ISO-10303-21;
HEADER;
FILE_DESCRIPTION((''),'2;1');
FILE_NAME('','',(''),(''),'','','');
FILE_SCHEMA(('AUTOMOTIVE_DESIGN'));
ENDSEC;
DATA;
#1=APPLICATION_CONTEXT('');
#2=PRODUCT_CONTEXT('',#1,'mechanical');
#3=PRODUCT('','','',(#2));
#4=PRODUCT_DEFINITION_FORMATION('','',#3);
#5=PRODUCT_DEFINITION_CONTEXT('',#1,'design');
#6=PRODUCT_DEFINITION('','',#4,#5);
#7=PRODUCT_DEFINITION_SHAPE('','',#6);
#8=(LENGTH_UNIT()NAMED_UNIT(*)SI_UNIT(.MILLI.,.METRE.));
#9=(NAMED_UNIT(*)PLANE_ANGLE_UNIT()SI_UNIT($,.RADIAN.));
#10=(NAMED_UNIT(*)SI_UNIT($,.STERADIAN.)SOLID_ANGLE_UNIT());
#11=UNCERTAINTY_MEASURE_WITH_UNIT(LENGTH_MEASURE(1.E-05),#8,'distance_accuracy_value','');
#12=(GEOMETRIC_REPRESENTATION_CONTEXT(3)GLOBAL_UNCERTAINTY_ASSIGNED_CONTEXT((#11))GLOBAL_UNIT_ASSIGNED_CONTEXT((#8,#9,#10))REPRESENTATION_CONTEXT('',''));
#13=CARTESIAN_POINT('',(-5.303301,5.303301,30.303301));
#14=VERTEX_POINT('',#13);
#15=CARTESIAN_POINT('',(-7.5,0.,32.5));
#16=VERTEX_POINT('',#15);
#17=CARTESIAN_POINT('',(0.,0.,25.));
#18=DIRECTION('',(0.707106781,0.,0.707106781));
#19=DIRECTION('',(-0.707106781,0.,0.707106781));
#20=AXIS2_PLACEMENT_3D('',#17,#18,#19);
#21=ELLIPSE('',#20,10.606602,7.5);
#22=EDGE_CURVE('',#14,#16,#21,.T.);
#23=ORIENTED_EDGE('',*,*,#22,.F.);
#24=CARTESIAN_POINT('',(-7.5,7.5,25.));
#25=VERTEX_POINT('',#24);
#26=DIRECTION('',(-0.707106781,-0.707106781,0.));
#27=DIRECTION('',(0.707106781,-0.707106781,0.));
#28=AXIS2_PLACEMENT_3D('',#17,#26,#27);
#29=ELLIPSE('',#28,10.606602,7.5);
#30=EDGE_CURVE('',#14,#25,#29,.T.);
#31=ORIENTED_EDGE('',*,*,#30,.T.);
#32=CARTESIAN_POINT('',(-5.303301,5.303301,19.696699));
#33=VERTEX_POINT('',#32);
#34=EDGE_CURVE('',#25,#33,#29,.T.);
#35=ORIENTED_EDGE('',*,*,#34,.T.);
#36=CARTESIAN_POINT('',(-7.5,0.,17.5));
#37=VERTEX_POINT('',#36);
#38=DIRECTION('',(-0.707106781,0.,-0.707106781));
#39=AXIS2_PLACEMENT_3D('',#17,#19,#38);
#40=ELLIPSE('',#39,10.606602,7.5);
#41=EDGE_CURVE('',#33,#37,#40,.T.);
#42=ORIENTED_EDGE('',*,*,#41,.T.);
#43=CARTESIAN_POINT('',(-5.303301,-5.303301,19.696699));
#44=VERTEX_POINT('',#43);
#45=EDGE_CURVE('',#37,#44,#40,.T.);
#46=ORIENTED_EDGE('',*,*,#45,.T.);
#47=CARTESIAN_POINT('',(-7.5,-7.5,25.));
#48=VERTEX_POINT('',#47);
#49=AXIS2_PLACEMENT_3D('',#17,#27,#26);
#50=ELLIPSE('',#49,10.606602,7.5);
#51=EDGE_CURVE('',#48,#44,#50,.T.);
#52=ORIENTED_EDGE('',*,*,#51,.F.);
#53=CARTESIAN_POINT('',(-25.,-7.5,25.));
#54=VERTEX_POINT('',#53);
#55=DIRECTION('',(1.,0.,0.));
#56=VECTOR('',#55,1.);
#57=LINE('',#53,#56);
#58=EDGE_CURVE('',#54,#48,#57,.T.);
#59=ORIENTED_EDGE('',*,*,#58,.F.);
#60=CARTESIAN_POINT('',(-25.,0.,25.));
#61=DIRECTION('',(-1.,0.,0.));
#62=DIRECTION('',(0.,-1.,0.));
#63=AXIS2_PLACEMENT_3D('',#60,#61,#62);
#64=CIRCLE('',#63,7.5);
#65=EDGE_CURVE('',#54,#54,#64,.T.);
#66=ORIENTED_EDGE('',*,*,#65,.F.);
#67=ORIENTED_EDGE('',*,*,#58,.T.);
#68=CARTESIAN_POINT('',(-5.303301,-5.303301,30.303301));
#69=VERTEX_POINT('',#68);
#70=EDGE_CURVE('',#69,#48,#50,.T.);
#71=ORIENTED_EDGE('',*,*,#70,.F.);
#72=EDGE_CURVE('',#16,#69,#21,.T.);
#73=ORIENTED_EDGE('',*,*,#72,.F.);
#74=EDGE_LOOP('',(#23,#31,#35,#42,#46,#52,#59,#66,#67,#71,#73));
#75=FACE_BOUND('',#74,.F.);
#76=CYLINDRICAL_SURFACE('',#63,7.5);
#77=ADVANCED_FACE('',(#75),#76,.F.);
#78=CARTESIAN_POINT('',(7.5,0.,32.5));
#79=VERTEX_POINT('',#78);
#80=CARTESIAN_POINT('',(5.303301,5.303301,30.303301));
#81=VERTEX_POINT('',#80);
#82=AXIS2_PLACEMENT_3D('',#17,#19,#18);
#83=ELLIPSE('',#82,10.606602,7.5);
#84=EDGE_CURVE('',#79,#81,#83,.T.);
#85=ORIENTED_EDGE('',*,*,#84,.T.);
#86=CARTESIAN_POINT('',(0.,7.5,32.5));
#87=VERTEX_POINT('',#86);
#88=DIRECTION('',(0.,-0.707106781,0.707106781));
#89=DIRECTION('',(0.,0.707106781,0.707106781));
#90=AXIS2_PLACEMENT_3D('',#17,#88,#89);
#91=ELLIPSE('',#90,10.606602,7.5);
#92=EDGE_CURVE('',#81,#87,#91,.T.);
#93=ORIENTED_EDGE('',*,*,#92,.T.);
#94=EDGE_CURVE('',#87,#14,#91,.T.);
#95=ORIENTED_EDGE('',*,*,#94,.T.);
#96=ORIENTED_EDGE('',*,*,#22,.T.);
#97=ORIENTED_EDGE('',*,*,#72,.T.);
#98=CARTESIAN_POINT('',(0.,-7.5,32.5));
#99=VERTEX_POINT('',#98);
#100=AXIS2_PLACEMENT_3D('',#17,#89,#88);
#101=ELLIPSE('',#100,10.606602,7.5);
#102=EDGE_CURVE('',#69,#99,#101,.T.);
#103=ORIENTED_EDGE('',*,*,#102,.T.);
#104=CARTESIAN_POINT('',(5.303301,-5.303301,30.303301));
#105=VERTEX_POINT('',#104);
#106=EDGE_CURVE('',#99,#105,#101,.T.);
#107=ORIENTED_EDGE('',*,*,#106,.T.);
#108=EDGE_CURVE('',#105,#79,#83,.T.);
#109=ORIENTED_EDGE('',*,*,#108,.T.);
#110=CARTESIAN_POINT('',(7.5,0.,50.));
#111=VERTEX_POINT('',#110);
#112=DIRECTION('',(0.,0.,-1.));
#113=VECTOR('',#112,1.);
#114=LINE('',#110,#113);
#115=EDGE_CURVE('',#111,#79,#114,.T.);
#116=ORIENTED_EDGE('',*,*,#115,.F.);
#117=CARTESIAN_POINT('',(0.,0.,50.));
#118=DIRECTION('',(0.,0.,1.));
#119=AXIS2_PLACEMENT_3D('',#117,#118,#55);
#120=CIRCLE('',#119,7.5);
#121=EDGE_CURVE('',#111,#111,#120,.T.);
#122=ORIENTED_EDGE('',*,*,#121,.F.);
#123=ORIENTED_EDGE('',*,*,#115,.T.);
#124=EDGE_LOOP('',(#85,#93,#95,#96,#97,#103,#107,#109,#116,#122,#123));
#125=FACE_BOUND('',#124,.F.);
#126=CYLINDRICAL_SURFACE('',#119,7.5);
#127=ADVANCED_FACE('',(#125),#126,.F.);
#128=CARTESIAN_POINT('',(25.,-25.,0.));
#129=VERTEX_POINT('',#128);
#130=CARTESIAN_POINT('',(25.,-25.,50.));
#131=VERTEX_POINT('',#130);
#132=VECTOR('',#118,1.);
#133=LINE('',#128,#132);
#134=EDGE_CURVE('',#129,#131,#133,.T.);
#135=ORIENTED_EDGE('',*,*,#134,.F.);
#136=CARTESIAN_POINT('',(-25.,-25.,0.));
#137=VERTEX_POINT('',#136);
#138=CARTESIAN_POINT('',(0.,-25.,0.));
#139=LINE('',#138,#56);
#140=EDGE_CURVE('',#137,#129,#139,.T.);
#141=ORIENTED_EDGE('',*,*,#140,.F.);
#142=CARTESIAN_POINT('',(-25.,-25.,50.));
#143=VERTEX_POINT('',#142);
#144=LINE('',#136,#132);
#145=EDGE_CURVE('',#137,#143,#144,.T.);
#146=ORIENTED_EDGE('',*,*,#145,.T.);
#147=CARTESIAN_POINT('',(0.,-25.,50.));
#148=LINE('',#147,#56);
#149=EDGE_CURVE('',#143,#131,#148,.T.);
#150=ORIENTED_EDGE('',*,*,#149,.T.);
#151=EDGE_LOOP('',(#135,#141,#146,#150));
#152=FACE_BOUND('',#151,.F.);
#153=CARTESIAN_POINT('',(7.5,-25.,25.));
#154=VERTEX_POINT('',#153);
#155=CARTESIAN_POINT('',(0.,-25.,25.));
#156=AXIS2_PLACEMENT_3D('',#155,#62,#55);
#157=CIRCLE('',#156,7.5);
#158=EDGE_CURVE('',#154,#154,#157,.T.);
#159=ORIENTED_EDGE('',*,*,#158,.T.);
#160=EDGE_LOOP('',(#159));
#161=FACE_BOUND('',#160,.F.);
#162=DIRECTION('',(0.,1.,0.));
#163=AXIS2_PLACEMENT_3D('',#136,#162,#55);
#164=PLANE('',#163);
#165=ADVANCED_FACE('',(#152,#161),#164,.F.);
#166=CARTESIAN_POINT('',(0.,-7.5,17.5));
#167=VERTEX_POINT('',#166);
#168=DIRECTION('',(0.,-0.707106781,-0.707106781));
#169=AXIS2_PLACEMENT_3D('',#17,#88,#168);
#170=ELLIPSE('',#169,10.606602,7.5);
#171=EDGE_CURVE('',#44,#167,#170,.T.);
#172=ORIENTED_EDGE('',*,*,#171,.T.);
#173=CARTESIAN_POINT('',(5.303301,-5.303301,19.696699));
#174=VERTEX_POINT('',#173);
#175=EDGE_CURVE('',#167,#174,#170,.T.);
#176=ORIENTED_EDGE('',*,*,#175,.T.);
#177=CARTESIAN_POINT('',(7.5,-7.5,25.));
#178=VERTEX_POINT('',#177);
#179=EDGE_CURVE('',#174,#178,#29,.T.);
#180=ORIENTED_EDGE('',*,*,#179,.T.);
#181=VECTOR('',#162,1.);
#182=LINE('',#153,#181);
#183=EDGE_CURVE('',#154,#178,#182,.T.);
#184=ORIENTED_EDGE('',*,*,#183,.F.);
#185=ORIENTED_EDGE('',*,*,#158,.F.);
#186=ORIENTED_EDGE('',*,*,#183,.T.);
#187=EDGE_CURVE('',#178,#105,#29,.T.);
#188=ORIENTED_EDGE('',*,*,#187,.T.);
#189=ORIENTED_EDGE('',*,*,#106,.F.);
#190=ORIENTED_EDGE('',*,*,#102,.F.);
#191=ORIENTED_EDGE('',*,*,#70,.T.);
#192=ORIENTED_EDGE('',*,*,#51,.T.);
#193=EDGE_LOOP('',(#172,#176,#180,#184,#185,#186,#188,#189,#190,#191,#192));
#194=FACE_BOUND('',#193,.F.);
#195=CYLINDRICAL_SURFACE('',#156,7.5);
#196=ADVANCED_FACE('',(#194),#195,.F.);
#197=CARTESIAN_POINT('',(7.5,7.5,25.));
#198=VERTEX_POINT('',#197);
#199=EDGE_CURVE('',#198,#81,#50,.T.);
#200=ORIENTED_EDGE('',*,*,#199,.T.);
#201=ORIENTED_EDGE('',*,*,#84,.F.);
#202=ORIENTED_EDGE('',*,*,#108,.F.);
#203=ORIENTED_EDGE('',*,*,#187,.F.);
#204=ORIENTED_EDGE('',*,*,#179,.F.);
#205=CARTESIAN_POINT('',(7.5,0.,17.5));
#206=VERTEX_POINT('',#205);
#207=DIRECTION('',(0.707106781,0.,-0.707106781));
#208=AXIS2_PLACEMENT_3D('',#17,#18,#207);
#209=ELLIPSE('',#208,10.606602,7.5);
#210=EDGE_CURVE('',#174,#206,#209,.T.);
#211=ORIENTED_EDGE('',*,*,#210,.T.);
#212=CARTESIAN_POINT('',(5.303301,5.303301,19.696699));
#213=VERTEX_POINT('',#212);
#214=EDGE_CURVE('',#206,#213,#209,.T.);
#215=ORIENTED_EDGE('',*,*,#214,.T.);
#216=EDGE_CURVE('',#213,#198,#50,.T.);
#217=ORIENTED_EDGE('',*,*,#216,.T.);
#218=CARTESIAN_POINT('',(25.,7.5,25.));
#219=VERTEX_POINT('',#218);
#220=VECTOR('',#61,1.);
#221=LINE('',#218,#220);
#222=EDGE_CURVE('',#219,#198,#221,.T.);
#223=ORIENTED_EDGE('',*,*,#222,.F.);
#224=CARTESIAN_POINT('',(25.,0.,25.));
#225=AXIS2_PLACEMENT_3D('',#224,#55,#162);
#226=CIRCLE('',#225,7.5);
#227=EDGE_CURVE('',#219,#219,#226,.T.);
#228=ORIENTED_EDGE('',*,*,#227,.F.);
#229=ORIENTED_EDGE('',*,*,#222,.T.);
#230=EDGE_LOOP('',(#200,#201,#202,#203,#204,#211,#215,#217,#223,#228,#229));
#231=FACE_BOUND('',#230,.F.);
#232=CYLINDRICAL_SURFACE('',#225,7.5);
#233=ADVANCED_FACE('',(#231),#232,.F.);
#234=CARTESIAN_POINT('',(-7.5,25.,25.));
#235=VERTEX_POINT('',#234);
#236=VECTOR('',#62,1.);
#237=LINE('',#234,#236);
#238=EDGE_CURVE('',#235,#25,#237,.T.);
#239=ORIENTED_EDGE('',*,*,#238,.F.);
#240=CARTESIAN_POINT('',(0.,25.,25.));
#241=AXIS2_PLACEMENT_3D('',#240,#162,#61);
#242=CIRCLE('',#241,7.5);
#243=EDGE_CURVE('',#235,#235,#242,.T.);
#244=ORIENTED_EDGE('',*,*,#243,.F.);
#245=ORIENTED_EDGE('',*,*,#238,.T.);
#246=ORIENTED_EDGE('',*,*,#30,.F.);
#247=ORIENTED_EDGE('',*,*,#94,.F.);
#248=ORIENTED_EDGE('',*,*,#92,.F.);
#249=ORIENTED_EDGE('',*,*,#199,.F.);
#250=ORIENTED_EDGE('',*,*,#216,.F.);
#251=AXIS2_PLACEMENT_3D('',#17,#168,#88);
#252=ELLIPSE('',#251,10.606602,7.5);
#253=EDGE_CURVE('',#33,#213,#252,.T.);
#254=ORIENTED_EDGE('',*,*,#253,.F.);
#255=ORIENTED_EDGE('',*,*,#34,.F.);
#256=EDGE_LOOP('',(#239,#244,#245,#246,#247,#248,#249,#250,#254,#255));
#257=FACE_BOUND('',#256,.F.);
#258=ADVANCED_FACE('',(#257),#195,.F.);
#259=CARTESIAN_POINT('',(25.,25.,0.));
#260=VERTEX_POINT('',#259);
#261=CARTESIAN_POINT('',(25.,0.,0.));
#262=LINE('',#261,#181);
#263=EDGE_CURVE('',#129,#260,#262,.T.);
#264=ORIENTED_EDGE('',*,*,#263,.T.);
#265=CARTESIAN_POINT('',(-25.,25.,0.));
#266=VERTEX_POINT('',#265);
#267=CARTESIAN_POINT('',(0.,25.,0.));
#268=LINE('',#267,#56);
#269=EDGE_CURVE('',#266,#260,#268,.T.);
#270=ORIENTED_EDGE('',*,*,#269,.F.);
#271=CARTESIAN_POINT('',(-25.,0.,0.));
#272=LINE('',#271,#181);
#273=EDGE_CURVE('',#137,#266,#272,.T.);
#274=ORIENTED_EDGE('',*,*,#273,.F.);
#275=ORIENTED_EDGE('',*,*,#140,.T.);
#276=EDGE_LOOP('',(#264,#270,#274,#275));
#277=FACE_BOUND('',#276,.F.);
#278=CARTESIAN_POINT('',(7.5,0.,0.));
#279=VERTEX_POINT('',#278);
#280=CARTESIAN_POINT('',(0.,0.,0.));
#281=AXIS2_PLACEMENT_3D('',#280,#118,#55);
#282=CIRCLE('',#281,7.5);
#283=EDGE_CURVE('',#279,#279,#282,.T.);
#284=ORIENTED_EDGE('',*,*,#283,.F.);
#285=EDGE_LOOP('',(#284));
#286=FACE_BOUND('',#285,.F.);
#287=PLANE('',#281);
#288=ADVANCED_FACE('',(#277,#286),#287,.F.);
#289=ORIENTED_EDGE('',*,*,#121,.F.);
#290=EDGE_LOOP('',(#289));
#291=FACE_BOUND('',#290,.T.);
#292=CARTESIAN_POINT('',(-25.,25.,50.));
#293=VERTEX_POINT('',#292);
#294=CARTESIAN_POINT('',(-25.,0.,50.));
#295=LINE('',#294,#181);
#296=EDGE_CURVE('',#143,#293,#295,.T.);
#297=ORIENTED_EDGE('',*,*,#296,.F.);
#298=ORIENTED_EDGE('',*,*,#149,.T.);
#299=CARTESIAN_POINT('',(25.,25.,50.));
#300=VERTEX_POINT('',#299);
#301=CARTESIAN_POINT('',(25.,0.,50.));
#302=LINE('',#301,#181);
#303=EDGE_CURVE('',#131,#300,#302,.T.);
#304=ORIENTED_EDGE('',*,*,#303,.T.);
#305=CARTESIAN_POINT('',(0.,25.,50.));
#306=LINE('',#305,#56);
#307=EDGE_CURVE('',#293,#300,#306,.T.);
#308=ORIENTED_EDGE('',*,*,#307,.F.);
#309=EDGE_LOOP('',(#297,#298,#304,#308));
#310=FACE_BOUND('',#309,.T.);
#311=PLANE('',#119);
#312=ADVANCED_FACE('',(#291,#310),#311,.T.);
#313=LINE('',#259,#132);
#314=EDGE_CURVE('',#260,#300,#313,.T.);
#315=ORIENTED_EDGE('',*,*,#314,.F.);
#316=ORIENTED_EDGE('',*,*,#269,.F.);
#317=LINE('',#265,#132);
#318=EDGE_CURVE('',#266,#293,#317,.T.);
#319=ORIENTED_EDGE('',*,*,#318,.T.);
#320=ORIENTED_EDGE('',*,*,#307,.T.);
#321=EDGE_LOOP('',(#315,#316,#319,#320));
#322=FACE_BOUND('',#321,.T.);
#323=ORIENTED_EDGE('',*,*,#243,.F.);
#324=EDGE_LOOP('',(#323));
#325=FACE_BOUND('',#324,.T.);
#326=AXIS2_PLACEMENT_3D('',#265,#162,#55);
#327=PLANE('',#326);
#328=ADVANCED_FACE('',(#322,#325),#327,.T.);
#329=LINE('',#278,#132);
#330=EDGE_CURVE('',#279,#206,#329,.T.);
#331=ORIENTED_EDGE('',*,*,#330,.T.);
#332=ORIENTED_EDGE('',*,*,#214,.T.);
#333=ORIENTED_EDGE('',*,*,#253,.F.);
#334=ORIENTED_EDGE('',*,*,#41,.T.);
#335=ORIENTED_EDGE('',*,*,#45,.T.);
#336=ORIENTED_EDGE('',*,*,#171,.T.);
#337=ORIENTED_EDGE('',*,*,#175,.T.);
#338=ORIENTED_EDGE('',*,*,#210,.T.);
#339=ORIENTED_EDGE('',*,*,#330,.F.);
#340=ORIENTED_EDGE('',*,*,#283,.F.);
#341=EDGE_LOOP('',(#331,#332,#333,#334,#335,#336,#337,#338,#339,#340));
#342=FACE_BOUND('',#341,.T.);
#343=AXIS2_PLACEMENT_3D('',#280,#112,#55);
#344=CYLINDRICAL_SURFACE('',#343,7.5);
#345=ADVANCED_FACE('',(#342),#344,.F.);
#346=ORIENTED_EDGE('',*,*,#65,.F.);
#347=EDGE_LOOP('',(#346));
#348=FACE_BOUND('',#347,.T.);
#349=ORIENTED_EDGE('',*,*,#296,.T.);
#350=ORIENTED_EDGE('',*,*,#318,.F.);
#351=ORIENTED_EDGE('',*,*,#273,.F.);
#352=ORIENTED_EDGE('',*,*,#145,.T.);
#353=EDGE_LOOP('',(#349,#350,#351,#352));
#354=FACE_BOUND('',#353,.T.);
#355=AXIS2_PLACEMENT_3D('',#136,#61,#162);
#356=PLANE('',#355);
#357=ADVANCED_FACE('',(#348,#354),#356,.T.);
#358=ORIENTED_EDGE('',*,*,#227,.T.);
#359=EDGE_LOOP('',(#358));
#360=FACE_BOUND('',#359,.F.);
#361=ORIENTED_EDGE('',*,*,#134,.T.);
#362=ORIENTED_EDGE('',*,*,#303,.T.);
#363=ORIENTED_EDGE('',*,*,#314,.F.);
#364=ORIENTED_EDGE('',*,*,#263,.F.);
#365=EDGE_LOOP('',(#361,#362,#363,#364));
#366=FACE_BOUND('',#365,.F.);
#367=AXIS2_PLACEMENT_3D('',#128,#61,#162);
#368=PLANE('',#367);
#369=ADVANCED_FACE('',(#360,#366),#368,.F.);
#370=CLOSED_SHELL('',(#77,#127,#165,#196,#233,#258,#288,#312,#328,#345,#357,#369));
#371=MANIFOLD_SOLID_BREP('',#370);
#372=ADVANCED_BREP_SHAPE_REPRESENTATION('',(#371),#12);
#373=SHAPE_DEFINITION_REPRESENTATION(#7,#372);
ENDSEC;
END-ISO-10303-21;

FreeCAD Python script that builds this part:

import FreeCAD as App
import Part
import Sketcher
from FreeCAD import Vector


def add_polygon(sketch, points):
    """Adds a closed chain of lines whose ends are joined by coincident constraints."""
    first, n = sketch.GeometryCount, len(points)
    for a, b in zip(points, points[1:] + points[:1]):
        sketch.addGeometry(Part.LineSegment(App.Vector(*a, 0), App.Vector(*b, 0)), False)
    for i in range(n):
        sketch.addConstraint(Sketcher.Constraint("Coincident", first + i, 2, first + (i + 1) % n, 1))

doc = App.newDocument("Part")
params = doc.addObject("Spreadsheet::Sheet", "Params")
for row, (alias, value) in enumerate([
    ("sketch1_width", "50 mm"),
    ("pad1_length", "50 mm"),
    ("sketch2_diameter", "15 mm"),
    ("pocket1_length", "25 mm"),
    ("sketch3_diameter", "15 mm"),
    ("pocket2_length", "25 mm"),
    ("sketch4_diameter", "15 mm"),
    ("pocket3_length", "25 mm"),
    ("sketch5_diameter", "15 mm"),
    ("pocket4_length", "25 mm"),
    ("sketch6_diameter", "15 mm"),
    ("pocket5_length", "25 mm"),
    ("sketch7_diameter", "15 mm"),
    ("pocket6_length", "25 mm"),
], start=1):
    params.set(f"A{row}", alias)
    params.set(f"B{row}", "=" + value)
    params.setAlias(f"B{row}", alias)

body = doc.addObject("PartDesign::Body", "Body")

# Sketch on XY plane
sketch1 = body.newObject("Sketcher::SketchObject", "Sketch")
sketch1.AttachmentSupport = (doc.getObject("XY_Plane"), [""])
sketch1.MapMode = "FlatFace"
add_polygon(sketch1, [(-25, 25), (-25, -25), (25, -25), (25, 25)])  # lines 0-3
sketch1.addConstraint(Sketcher.Constraint("Vertical", 0))
sketch1.addConstraint(Sketcher.Constraint("Horizontal", 1))
sketch1.addConstraint(Sketcher.Constraint("Vertical", 2))
sketch1.addConstraint(Sketcher.Constraint("Horizontal", 3))
sketch1.addConstraint(Sketcher.Constraint("Symmetric", 0, 2, 2, 2, -1, 1))
sketch1.addConstraint(Sketcher.Constraint("Equal", 3, 0))
sketch1.addConstraint(Sketcher.Constraint("DistanceX", 1, 1, 1, 2, 50.0))
sketch1.setExpression("Constraints[10]", "Params.sketch1_width")
pad1 = body.newObject("PartDesign::Pad", "Pad")
pad1.Profile = sketch1
pad1.setExpression("Length", "Params.pad1_length")

# Sketch on XY plane
sketch2 = body.newObject("Sketcher::SketchObject", "Sketch001")
sketch2.AttachmentSupport = (doc.getObject("XY_Plane"), [""])
sketch2.MapMode = "FlatFace"
sketch2.AttachmentOffset = App.Placement(Vector(0, 0, 50), App.Rotation())
sketch2.addGeometry(Part.Circle(Vector(0, 0, 0), Vector(0, 0, 1), 8), False)
sketch2.addConstraint(Sketcher.Constraint("Coincident", 0, 3, -1, 1))
sketch2.addConstraint(Sketcher.Constraint("Diameter", 0, 15.0))
sketch2.setExpression("Constraints[1]", "Params.sketch2_diameter")
pocket1 = body.newObject("PartDesign::Pocket", "Pocket")
pocket1.Profile = sketch2
pocket1.setExpression("Length", "Params.pocket1_length")

# Sketch on XZ plane
sketch3 = body.newObject("Sketcher::SketchObject", "Sketch002")
sketch3.AttachmentSupport = (doc.getObject("XZ_Plane"), [""])
sketch3.MapMode = "FlatFace"
sketch3.AttachmentOffset = App.Placement(Vector(0, 0, -25), App.Rotation())
sketch3.addGeometry(Part.Circle(Vector(0, 25, 0), Vector(0, 0, 1), 8), False)
sketch3.addConstraint(Sketcher.Constraint("PointOnObject", 0, 3, -2))
sketch3.addConstraint(Sketcher.Constraint("Diameter", 0, 15.0))
sketch3.addConstraint(Sketcher.Constraint("DistanceY", -1, 1, 0, 3, 25.0))
sketch3.setExpression("Constraints[1]", "Params.sketch3_diameter")
pocket2 = body.newObject("PartDesign::Pocket", "Pocket001")
pocket2.Profile = sketch3
pocket2.setExpression("Length", "Params.pocket2_length")
pocket2.Reversed = True

# Sketch on XZ plane
sketch4 = body.newObject("Sketcher::SketchObject", "Sketch003")
sketch4.AttachmentSupport = (doc.getObject("XZ_Plane"), [""])
sketch4.MapMode = "FlatFace"
sketch4.AttachmentOffset = App.Placement(Vector(0, 0, 25), App.Rotation())
sketch4.addGeometry(Part.Circle(Vector(0, 25, 0), Vector(0, 0, 1), 8), False)
sketch4.addConstraint(Sketcher.Constraint("PointOnObject", 0, 3, -2))
sketch4.addConstraint(Sketcher.Constraint("Diameter", 0, 15.0))
sketch4.addConstraint(Sketcher.Constraint("DistanceY", -1, 1, 0, 3, 25.0))
sketch4.setExpression("Constraints[1]", "Params.sketch4_diameter")
pocket3 = body.newObject("PartDesign::Pocket", "Pocket002")
pocket3.Profile = sketch4
pocket3.setExpression("Length", "Params.pocket3_length")

# Sketch on YZ plane
sketch5 = body.newObject("Sketcher::SketchObject", "Sketch004")
sketch5.AttachmentSupport = (doc.getObject("YZ_Plane"), [""])
sketch5.MapMode = "FlatFace"
sketch5.AttachmentOffset = App.Placement(Vector(0, 0, -25), App.Rotation())
sketch5.addGeometry(Part.Circle(Vector(0, 25, 0), Vector(0, 0, 1), 8), False)
sketch5.addConstraint(Sketcher.Constraint("PointOnObject", 0, 3, -2))
sketch5.addConstraint(Sketcher.Constraint("Diameter", 0, 15.0))
sketch5.addConstraint(Sketcher.Constraint("DistanceY", -1, 1, 0, 3, 25.0))
sketch5.setExpression("Constraints[1]", "Params.sketch5_diameter")
pocket4 = body.newObject("PartDesign::Pocket", "Pocket003")
pocket4.Profile = sketch5
pocket4.setExpression("Length", "Params.pocket4_length")
pocket4.Reversed = True

# Sketch on YZ plane
sketch6 = body.newObject("Sketcher::SketchObject", "Sketch005")
sketch6.AttachmentSupport = (doc.getObject("YZ_Plane"), [""])
sketch6.MapMode = "FlatFace"
sketch6.AttachmentOffset = App.Placement(Vector(0, 0, 25), App.Rotation())
sketch6.addGeometry(Part.Circle(Vector(0, 25, 0), Vector(0, 0, 1), 8), False)
sketch6.addConstraint(Sketcher.Constraint("PointOnObject", 0, 3, -2))
sketch6.addConstraint(Sketcher.Constraint("Diameter", 0, 15.0))
sketch6.addConstraint(Sketcher.Constraint("DistanceY", -1, 1, 0, 3, 25.0))
sketch6.setExpression("Constraints[1]", "Params.sketch6_diameter")
pocket5 = body.newObject("PartDesign::Pocket", "Pocket004")
pocket5.Profile = sketch6
pocket5.setExpression("Length", "Params.pocket5_length")

# Sketch on XY plane
sketch7 = body.newObject("Sketcher::SketchObject", "Sketch006")
sketch7.AttachmentSupport = (doc.getObject("XY_Plane"), [""])
sketch7.MapMode = "FlatFace"
sketch7.addGeometry(Part.Circle(Vector(0, 0, 0), Vector(0, 0, 1), 8), False)
sketch7.addConstraint(Sketcher.Constraint("Coincident", 0, 3, -1, 1))
sketch7.addConstraint(Sketcher.Constraint("Diameter", 0, 15.0))
sketch7.setExpression("Constraints[1]", "Params.sketch7_diameter")
pocket6 = body.newObject("PartDesign::Pocket", "Pocket005")
pocket6.Profile = sketch7
pocket6.setExpression("Length", "Params.pocket6_length")
pocket6.Reversed = True

doc.recompute()
